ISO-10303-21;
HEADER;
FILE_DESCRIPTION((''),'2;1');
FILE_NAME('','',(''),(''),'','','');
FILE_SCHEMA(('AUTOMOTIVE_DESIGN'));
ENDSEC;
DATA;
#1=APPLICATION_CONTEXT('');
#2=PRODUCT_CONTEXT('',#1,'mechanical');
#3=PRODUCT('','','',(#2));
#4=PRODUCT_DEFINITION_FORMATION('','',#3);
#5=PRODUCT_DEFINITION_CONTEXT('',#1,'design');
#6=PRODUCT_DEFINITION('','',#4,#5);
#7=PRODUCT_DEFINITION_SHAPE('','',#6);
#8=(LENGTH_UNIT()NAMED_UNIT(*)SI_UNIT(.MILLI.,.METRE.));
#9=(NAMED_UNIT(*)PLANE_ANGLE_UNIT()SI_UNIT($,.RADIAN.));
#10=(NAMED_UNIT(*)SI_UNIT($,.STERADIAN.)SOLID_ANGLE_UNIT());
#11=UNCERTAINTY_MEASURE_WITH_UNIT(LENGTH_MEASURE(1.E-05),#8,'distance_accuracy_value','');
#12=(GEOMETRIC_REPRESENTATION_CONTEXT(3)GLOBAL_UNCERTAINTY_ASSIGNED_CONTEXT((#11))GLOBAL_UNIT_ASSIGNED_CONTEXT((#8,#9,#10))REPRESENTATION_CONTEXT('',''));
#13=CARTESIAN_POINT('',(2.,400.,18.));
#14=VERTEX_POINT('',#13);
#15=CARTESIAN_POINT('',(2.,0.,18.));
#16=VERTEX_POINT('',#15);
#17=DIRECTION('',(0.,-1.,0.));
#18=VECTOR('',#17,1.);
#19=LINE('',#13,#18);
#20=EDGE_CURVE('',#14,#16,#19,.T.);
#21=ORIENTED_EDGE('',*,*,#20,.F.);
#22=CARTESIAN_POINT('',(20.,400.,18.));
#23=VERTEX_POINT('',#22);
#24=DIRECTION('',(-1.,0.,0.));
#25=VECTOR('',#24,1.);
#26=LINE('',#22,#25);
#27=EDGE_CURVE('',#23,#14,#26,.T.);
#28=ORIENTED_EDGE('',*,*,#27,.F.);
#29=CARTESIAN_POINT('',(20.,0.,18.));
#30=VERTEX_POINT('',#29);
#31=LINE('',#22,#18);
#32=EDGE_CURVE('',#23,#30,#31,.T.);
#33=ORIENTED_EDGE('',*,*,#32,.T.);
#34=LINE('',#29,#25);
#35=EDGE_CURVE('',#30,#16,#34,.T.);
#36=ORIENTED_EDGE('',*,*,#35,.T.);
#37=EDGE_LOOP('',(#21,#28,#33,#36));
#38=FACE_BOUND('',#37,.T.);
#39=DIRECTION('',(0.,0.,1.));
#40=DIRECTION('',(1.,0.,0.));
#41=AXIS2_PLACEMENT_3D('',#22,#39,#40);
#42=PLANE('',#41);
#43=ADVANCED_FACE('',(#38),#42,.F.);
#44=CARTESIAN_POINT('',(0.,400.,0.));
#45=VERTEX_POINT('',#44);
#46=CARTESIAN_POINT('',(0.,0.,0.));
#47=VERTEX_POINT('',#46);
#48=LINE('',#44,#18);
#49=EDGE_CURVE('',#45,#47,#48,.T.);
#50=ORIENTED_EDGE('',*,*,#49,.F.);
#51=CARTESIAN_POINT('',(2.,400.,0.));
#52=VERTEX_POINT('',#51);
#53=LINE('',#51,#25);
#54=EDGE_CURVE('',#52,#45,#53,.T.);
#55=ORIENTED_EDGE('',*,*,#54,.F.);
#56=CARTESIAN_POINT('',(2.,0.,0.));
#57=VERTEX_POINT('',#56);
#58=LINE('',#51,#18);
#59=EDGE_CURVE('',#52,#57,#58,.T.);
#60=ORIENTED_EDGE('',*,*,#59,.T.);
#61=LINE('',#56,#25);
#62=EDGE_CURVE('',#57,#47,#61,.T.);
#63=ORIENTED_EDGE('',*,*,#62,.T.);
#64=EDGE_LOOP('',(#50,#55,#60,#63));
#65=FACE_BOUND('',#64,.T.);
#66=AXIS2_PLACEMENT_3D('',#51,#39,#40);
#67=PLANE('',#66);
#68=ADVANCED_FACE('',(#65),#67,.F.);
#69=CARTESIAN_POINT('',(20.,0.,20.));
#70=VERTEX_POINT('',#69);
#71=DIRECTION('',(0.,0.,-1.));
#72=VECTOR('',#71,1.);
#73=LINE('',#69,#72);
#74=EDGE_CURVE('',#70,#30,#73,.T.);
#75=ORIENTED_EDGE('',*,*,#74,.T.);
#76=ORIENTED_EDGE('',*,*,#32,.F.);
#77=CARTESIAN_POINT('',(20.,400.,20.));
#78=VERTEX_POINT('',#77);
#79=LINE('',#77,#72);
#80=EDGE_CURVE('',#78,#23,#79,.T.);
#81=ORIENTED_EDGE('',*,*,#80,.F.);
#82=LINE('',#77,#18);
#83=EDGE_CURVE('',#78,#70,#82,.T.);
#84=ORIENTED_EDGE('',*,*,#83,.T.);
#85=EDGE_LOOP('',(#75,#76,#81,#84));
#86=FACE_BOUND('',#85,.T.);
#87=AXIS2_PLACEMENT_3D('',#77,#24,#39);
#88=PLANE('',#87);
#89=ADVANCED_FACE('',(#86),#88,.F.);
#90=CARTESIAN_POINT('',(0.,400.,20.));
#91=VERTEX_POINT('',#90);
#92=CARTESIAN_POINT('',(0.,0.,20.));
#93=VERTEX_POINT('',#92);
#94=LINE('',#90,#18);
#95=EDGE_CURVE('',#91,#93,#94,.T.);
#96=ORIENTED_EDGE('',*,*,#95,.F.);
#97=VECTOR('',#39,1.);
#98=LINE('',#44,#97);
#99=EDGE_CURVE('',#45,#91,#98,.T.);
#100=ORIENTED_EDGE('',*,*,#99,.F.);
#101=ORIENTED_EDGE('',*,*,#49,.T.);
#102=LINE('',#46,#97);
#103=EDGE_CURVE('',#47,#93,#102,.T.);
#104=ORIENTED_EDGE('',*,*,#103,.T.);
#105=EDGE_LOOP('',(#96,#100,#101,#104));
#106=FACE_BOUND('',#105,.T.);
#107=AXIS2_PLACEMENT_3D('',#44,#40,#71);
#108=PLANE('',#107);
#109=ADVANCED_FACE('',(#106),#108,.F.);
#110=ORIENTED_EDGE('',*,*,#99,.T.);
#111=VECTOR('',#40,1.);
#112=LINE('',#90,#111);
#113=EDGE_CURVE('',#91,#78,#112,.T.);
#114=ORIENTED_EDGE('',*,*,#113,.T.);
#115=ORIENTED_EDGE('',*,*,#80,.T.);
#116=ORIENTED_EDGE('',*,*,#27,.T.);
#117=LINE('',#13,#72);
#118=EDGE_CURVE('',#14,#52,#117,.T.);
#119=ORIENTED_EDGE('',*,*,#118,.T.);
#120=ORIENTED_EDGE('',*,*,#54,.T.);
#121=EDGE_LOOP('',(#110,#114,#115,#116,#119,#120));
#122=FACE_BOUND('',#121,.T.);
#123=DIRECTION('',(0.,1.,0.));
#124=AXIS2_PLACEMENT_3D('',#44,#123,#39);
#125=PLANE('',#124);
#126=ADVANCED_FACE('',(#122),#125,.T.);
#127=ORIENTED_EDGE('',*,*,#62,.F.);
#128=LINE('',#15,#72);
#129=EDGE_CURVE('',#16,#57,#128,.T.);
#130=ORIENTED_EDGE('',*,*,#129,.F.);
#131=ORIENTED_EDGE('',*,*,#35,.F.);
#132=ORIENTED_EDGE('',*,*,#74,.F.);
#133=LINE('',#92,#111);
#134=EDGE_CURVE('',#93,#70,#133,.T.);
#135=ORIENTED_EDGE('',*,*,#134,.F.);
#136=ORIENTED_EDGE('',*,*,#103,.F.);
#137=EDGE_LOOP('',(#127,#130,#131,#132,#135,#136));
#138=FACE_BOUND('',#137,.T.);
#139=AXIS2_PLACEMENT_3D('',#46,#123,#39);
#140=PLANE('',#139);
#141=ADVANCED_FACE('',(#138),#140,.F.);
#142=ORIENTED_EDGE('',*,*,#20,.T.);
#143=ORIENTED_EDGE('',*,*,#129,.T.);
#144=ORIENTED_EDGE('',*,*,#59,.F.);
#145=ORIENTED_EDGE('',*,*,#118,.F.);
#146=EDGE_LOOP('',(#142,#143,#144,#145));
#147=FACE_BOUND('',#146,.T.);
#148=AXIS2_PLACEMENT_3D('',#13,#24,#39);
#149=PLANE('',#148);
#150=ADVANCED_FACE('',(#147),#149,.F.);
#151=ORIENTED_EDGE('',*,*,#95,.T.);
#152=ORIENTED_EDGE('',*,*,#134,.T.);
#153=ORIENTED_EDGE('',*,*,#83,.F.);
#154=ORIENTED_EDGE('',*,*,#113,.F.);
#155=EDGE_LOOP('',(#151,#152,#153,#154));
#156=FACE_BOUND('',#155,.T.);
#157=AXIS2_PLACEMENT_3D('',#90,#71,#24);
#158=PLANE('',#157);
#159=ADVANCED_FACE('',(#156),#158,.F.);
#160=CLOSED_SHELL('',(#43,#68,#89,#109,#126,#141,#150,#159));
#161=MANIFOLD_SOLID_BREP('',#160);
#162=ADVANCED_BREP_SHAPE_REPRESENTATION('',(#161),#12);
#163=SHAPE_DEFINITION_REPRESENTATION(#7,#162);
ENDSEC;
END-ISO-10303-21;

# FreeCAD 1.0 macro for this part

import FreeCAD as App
import Part
import Sketcher
Q = App.Units.Quantity

doc = App.newDocument("Part")
body = doc.addObject("PartDesign::Body", "Body")

sketch1 = body.newObject("Sketcher::SketchObject", "Sketch")
sketch1.AttachmentSupport = (doc.getObject("XZ_Plane"), [""])
sketch1.MapMode = "FlatFace"
sketch1.addGeometry(Part.LineSegment(App.Vector(0, 0, 0), App.Vector(0, 20, 0)), False)
sketch1.addGeometry(Part.LineSegment(App.Vector(0, 20, 0), App.Vector(20, 20, 0)), False)
sketch1.addGeometry(Part.LineSegment(App.Vector(20, 20, 0), App.Vector(20, 18, 0)), False)
sketch1.addGeometry(Part.LineSegment(App.Vector(20, 18, 0), App.Vector(2, 18, 0)), False)
sketch1.addGeometry(Part.LineSegment(App.Vector(2, 18, 0), App.Vector(2, 0, 0)), False)
sketch1.addGeometry(Part.LineSegment(App.Vector(2, 0, 0), App.Vector(0, 0, 0)), False)
sketch1.addConstraint(Sketcher.Constraint("Coincident", 0, 2, 1, 1))
sketch1.addConstraint(Sketcher.Constraint("Coincident", 1, 2, 2, 1))
sketch1.addConstraint(Sketcher.Constraint("Coincident", 2, 2, 3, 1))
sketch1.addConstraint(Sketcher.Constraint("Coincident", 3, 2, 4, 1))
sketch1.addConstraint(Sketcher.Constraint("Coincident", 4, 2, 5, 1))
sketch1.addConstraint(Sketcher.Constraint("Coincident", 5, 2, 0, 1))
sketch1.addConstraint(Sketcher.Constraint("Vertical", 0))
sketch1.addConstraint(Sketcher.Constraint("Horizontal", 1))
sketch1.addConstraint(Sketcher.Constraint("Vertical", 2))
sketch1.addConstraint(Sketcher.Constraint("Horizontal", 3))
sketch1.addConstraint(Sketcher.Constraint("Vertical", 4))
sketch1.addConstraint(Sketcher.Constraint("Horizontal", 5))
sketch1.addConstraint(Sketcher.Constraint("Coincident", 5, 2, -1, 1))
sketch1.addConstraint(Sketcher.Constraint("Equal", 1, 0))
sketch1.addConstraint(Sketcher.Constraint("Equal", 5, 2))
sketch1.addConstraint(Sketcher.Constraint("DistanceX", 1, 1, 1, 2, Q("20 mm")))
sketch1.addConstraint(Sketcher.Constraint("DistanceX", 3, 2, 3, 1, Q("18 mm")))
pad1 = body.newObject("PartDesign::Pad", "Pad")
pad1.Profile = sketch1
pad1.Length = 400
pad1.Reversed = True

doc.recompute()
